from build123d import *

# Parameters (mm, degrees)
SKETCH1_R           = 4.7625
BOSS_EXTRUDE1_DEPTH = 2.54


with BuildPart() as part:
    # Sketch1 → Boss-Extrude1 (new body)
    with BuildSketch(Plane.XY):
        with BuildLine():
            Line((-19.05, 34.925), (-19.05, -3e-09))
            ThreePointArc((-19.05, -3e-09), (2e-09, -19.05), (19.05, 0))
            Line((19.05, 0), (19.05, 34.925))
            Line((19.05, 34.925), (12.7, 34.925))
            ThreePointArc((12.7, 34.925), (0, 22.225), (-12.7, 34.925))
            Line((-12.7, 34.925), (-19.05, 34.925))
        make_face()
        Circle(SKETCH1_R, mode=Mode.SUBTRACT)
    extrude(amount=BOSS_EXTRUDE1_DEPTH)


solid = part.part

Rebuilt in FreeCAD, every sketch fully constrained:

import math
import FreeCAD as App
import Part
import Sketcher
from FreeCAD import Vector
Q = App.Units.Quantity

doc = App.newDocument("Part")
body = doc.addObject("PartDesign::Body", "Body")

# Sketch on XY plane
sketch1 = body.newObject("Sketcher::SketchObject", "Sketch")
sketch1.AttachmentSupport = (doc.getObject("XY_Plane"), [""])
sketch1.MapMode = "FlatFace"
sketch1.addGeometry([
    Part.LineSegment(Vector(-19.1, 34.9, 0), Vector(-19.1, 0, 0)),  # 0
    Part.ArcOfCircle(Part.Circle(Vector(0, 0, 0), Vector(0, 0, 1), 19.1), math.radians(-180), math.radians(0)),  # 1
    Part.LineSegment(Vector(19.1, 0, 0), Vector(19.1, 34.9, 0)),  # 2
    Part.LineSegment(Vector(19.1, 34.9, 0), Vector(12.7, 34.9, 0)),  # 3
    Part.ArcOfCircle(Part.Circle(Vector(0, 34.9, 0), Vector(0, 0, 1), 12.7), math.radians(180), math.radians(360)),  # 4
    Part.LineSegment(Vector(-12.7, 34.9, 0), Vector(-19.1, 34.9, 0)),  # 5
    Part.Circle(Vector(0, 0, 0), Vector(0, 0, 1), 4.8),  # 6
], False)
sketch1.addConstraint([
    Sketcher.Constraint("Tangent", 0, 2, 1, 1),
    Sketcher.Constraint("Tangent", 1, 2, 2, 1),
    Sketcher.Constraint("Coincident", 2, 2, 3, 1),
    Sketcher.Constraint("Coincident", 3, 2, 4, 2),
    Sketcher.Constraint("Coincident", 4, 1, 5, 1),
    Sketcher.Constraint("Coincident", 5, 2, 0, 1),
    Sketcher.Constraint("Vertical", 0),
    Sketcher.Constraint("Vertical", 2),
    Sketcher.Constraint("Horizontal", 3),
    Sketcher.Constraint("Horizontal", 5),
    Sketcher.Constraint("Coincident", 1, 3, -1, 1),
    Sketcher.Constraint("Coincident", 6, 3, -1, 1),
    Sketcher.Constraint("Symmetric", 3, 2, 4, 1, -2),
    Sketcher.Constraint("Horizontal", 4, 3, 2, 2),
    Sketcher.Constraint("Radius", 4, Q("0.5 in")),
    Sketcher.Constraint("Radius", 1, Q("0.75 in")),
    Sketcher.Constraint("Diameter", 6, Q("0.375 in")),
    Sketcher.Constraint("DistanceY", 0, 2, 0, 1, Q("1.375 in")),
])
pad1 = body.newObject("PartDesign::Pad", "Pad")
pad1.Profile = sketch1
pad1.Length = Q("0.1 in")

doc.recompute()
